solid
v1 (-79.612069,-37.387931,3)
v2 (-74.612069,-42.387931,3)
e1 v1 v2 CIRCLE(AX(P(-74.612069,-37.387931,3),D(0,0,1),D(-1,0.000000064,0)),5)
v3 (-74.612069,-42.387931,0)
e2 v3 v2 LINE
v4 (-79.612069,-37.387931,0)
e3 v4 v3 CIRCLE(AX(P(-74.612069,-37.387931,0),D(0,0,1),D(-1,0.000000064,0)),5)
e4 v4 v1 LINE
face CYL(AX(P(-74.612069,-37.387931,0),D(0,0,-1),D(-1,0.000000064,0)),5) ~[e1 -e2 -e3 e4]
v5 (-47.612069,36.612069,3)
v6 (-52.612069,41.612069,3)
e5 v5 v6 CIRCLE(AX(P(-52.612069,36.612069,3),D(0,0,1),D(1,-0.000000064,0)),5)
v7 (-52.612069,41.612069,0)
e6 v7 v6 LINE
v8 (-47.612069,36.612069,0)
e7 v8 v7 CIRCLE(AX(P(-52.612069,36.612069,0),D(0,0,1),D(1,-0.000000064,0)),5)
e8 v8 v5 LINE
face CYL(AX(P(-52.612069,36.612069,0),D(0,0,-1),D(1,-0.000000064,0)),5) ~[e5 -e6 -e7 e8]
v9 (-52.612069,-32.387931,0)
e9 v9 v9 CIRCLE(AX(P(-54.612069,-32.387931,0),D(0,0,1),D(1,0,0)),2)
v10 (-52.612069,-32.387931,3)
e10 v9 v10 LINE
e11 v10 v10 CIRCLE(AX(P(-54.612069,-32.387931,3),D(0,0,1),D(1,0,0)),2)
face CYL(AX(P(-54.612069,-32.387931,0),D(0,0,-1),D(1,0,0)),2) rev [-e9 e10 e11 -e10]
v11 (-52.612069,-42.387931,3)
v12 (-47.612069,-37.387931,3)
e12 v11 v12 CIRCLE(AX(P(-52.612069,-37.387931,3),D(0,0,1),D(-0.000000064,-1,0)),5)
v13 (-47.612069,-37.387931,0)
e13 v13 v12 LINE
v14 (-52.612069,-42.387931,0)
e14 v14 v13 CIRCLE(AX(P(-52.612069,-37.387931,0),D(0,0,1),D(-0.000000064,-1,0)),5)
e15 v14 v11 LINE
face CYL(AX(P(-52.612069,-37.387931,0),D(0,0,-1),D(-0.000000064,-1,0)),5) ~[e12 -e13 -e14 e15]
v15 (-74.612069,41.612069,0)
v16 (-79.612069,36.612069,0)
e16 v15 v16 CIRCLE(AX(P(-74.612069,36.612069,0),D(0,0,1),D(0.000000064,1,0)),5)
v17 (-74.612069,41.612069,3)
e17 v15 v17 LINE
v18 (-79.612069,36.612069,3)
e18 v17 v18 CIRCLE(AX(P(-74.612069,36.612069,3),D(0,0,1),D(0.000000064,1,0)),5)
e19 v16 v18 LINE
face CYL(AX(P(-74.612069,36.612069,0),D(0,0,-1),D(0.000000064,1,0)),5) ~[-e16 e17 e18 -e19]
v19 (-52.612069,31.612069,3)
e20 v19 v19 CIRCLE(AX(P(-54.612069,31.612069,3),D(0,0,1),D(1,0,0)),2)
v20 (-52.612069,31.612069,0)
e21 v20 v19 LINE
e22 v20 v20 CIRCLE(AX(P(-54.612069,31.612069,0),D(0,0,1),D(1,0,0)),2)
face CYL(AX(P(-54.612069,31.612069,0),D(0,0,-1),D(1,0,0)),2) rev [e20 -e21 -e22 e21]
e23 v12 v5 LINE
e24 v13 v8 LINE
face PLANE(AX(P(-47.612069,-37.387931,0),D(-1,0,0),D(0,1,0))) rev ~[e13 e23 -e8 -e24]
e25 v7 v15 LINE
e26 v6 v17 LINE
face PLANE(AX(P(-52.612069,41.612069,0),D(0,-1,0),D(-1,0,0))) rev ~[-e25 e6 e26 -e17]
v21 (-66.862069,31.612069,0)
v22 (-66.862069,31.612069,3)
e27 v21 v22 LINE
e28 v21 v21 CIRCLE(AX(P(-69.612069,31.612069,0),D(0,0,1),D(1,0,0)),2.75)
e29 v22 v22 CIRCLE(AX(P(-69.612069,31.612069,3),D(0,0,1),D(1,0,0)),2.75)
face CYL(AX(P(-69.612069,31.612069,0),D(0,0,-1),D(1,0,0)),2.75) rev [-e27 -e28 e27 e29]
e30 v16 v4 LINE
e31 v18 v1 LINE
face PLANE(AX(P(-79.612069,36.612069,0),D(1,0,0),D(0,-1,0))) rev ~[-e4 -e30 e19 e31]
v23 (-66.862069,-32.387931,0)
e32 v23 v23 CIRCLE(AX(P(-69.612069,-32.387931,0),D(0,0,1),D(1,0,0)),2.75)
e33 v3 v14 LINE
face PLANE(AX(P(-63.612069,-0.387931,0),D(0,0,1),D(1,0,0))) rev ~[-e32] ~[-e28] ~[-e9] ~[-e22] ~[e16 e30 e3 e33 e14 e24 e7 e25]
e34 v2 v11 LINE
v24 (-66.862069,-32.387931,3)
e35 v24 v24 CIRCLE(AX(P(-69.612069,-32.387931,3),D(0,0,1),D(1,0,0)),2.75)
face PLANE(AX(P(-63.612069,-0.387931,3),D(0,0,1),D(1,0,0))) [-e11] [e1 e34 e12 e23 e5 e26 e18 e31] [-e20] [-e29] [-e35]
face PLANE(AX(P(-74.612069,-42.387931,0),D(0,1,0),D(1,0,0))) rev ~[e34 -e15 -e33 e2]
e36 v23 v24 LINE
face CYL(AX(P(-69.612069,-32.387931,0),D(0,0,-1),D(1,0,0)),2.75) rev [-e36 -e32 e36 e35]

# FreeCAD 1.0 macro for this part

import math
import FreeCAD as App
import Part
import Sketcher

V = App.Vector

doc = App.newDocument("Part")
body = doc.addObject("PartDesign::Body", "Body")

# Sketch on XY plane
sketch1 = body.newObject("Sketcher::SketchObject", "Sketch")
sketch1.AttachmentSupport = (doc.getObject("XY_Plane"), [""])
sketch1.MapMode = "FlatFace"
sketch1.addGeometry([
    Part.ArcOfCircle(Part.Circle(V(-74.6, -37.4, 0), V(0, 0, 1), 5), math.radians(180), math.radians(270)),  # 0
    Part.LineSegment(V(-74.6, -42.4, 0), V(-52.6, -42.4, 0)),  # 1
    Part.ArcOfCircle(Part.Circle(V(-52.6, -37.4, 0), V(0, 0, 1), 5), math.radians(-90), math.radians(0)),  # 2
    Part.LineSegment(V(-47.6, -37.4, 0), V(-47.6, 36.6, 0)),  # 3
    Part.ArcOfCircle(Part.Circle(V(-52.6, 36.6, 0), V(0, 0, 1), 5), math.radians(0), math.radians(90)),  # 4
    Part.LineSegment(V(-52.6, 41.6, 0), V(-74.6, 41.6, 0)),  # 5
    Part.ArcOfCircle(Part.Circle(V(-74.6, 36.6, 0), V(0, 0, 1), 5), math.radians(90), math.radians(180)),  # 6
    Part.LineSegment(V(-79.6, 36.6, 0), V(-79.6, -37.4, 0)),  # 7
    Part.Circle(V(-69.6, -32.4, 0), V(0, 0, 1), 2.8),  # 8
    Part.Circle(V(-54.6, -32.4, 0), V(0, 0, 1), 2),  # 9
    Part.Circle(V(-69.6, 31.6, 0), V(0, 0, 1), 2.8),  # 10
    Part.Circle(V(-54.6, 31.6, 0), V(0, 0, 1), 2),  # 11
], False)
sketch1.addConstraint([
    Sketcher.Constraint("Tangent", 0, 2, 1, 1),
    Sketcher.Constraint("Tangent", 1, 2, 2, 1),
    Sketcher.Constraint("Tangent", 2, 2, 3, 1),
    Sketcher.Constraint("Tangent", 3, 2, 4, 1),
    Sketcher.Constraint("Tangent", 4, 2, 5, 1),
    Sketcher.Constraint("Tangent", 5, 2, 6, 1),
    Sketcher.Constraint("Tangent", 6, 2, 7, 1),
    Sketcher.Constraint("Tangent", 7, 2, 0, 1),
    Sketcher.Constraint("Horizontal", 1),
    Sketcher.Constraint("Vertical", 3),
    Sketcher.Constraint("Horizontal", 5),
    Sketcher.Constraint("Vertical", 7),
    Sketcher.Constraint("Equal", 0, 2),
    Sketcher.Constraint("Equal", 2, 4),
    Sketcher.Constraint("Equal", 4, 6),
    Sketcher.Constraint("Equal", 8, 10),
    Sketcher.Constraint("Equal", 9, 11),
    Sketcher.Constraint("Horizontal", 8, 3, 9, 3),
    Sketcher.Constraint("Horizontal", 10, 3, 11, 3),
    Sketcher.Constraint("Vertical", 8, 3, 10, 3),
    Sketcher.Constraint("Vertical", 9, 3, 11, 3),
    Sketcher.Constraint("Diameter", 9, 4.0),
    Sketcher.Constraint("Radius", 0, 5.0),
    Sketcher.Constraint("Diameter", 8, 5.5),
    Sketcher.Constraint("DistanceX", 1, 1, 1, 2, 22.0),
    Sketcher.Constraint("DistanceY", 3, 1, 3, 2, 74.0),
    Sketcher.Constraint("DistanceX", 0, 3, 8, 3, 5.0),
    Sketcher.Constraint("DistanceY", 0, 3, 8, 3, 5.0),
    Sketcher.Constraint("DistanceX", 9, 3, 2, 3, 2.0),
    Sketcher.Constraint("DistanceY", 10, 3, 6, 3, 5.0),
    Sketcher.Constraint("DistanceX", 0, 3, -1, 1, 74.612069),
    Sketcher.Constraint("DistanceY", 0, 3, -1, 1, 37.387931),
])
pad1 = body.newObject("PartDesign::Pad", "Pad")
pad1.Profile = sketch1
pad1.Length = 3
body2 = doc.addObject("PartDesign::Body", "Body001")

# Sketch on XY plane
sketch2 = body2.newObject("Sketcher::SketchObject", "Sketch001")
sketch2.AttachmentSupport = (doc.getObject("XY_Plane001"), [""])
sketch2.MapMode = "FlatFace"
sketch2.addGeometry([
    Part.ArcOfCircle(Part.Circle(V(69.4, 36.6, 0), V(0, 0, 1), 5), math.radians(0), math.radians(90)),  # 0
    Part.LineSegment(V(69.4, 41.6, 0), V(52.4, 41.6, 0)),  # 1
    Part.ArcOfCircle(Part.Circle(V(52.4, 36.6, 0), V(0, 0, 1), 5), math.radians(90), math.radians(180)),  # 2
    Part.LineSegment(V(47.4, 36.6, 0), V(47.4, -37.4, 0)),  # 3
    Part.ArcOfCircle(Part.Circle(V(52.4, -37.4, 0), V(0, 0, 1), 5), math.radians(180), math.radians(270)),  # 4
    Part.LineSegment(V(52.4, -42.4, 0), V(69.4, -42.4, 0)),  # 5
    Part.ArcOfCircle(Part.Circle(V(69.4, -37.4, 0), V(0, 0, 1), 5), math.radians(-90), math.radians(0)),  # 6
    Part.LineSegment(V(74.4, -37.4, 0), V(74.4, 36.6, 0)),  # 7
    Part.Circle(V(54.4, -32.4, 0), V(0, 0, 1), 2),  # 8
    Part.Circle(V(64.4, -32.4, 0), V(0, 0, 1), 2.8),  # 9
    Part.Circle(V(54.4, 31.6, 0), V(0, 0, 1), 2),  # 10
    Part.Circle(V(64.4, 31.6, 0), V(0, 0, 1), 2.8),  # 11
], False)
sketch2.addConstraint([
    Sketcher.Constraint("Tangent", 0, 2, 1, 1),
    Sketcher.Constraint("Tangent", 1, 2, 2, 1),
    Sketcher.Constraint("Tangent", 2, 2, 3, 1),
    Sketcher.Constraint("Tangent", 3, 2, 4, 1),
    Sketcher.Constraint("Tangent", 4, 2, 5, 1),
    Sketcher.Constraint("Tangent", 5, 2, 6, 1),
    Sketcher.Constraint("Tangent", 6, 2, 7, 1),
    Sketcher.Constraint("Tangent", 7, 2, 0, 1),
    Sketcher.Constraint("Horizontal", 1),
    Sketcher.Constraint("Vertical", 3),
    Sketcher.Constraint("Horizontal", 5),
    Sketcher.Constraint("Vertical", 7),
    Sketcher.Constraint("Equal", 0, 2),
    Sketcher.Constraint("Equal", 2, 4),
    Sketcher.Constraint("Equal", 4, 6),
    Sketcher.Constraint("Equal", 8, 10),
    Sketcher.Constraint("Equal", 9, 11),
    Sketcher.Constraint("Horizontal", 8, 3, 9, 3),
    Sketcher.Constraint("Horizontal", 10, 3, 11, 3),
    Sketcher.Constraint("Vertical", 8, 3, 10, 3),
    Sketcher.Constraint("Vertical", 9, 3, 11, 3),
    Sketcher.Constraint("Diameter", 8, 4.0),
    Sketcher.Constraint("Radius", 0, 5.0),
    Sketcher.Constraint("Diameter", 9, 5.5),
    Sketcher.Constraint("DistanceX", 1, 2, 1, 1, 17.0),
    Sketcher.Constraint("DistanceY", 3, 2, 3, 1, 74.0),
    Sketcher.Constraint("DistanceX", 4, 3, 8, 3, 2.0),
    Sketcher.Constraint("DistanceY", 4, 3, 8, 3, 5.0),
    Sketcher.Constraint("DistanceX", 9, 3, 6, 3, 5.0),
    Sketcher.Constraint("DistanceY", 10, 3, 2, 3, 5.0),
    Sketcher.Constraint("DistanceX", -1, 1, 0, 3, 69.387931),
    Sketcher.Constraint("DistanceY", -1, 1, 0, 3, 36.612069),
])
pad2 = body2.newObject("PartDesign::Pad", "Pad001")
pad2.Profile = sketch2
pad2.Length = 3
body2.Visibility = False

doc.recompute()
